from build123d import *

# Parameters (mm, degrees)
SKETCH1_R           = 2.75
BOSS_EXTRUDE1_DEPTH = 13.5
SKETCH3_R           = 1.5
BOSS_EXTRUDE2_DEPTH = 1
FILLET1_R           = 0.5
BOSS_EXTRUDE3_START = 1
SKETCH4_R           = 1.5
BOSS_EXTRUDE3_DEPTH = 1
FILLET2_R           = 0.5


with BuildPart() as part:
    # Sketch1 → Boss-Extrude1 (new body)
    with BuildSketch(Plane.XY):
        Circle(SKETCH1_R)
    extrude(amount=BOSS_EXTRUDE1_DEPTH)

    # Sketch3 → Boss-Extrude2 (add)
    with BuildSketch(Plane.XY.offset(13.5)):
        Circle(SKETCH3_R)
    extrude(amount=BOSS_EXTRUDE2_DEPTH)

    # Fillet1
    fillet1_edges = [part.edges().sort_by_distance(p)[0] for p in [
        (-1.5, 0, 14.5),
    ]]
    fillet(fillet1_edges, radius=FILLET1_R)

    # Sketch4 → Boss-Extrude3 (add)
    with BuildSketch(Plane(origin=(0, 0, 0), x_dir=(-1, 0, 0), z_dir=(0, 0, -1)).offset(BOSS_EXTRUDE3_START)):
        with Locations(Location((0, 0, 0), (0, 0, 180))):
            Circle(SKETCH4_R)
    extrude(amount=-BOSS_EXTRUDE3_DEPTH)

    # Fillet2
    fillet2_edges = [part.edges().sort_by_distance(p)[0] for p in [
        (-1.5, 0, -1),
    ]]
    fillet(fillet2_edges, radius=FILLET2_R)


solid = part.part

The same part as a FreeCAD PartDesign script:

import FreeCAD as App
import Part
import Sketcher
Q = App.Units.Quantity


def edges_at(feature, points):
    """Names of the edges that pass closest to the given points."""
    edges = feature.Shape.Edges
    near = lambda p: min(range(len(edges)), key=lambda i: edges[i].distToShape(Part.Vertex(*p))[0])
    return sorted({f"Edge{near(p) + 1}" for p in points})

doc = App.newDocument("Part")
body = doc.addObject("PartDesign::Body", "Body")

# Sketch on XY plane
sketch1 = doc.addObject("Sketcher::SketchObject", "Sketch")
body.addObject(sketch1)
sketch1.AttachmentSupport = (doc.XY_Plane, [""])
sketch1.MapMode = "FlatFace"
sketch1.addGeometry(Part.Circle(App.Vector(0, 0, 0), App.Vector(0, 0, 1), 2.8), False)
sketch1.addConstraint(Sketcher.Constraint("Coincident", 0, 3, -1, 1))
sketch1.addConstraint(Sketcher.Constraint("Diameter", 0, Q("5.5 mm")))
pad1 = doc.addObject("PartDesign::Pad", "Pad")
body.addObject(pad1)
pad1.Profile = sketch1
pad1.Length = 13.5

# Sketch on XY plane
sketch2 = doc.addObject("Sketcher::SketchObject", "Sketch001")
body.addObject(sketch2)
sketch2.AttachmentSupport = (doc.XY_Plane, [""])
sketch2.MapMode = "FlatFace"
sketch2.AttachmentOffset = App.Placement(App.Vector(0, 0, 13.5), App.Rotation())
sketch2.addGeometry(Part.Circle(App.Vector(0, 0, 0), App.Vector(0, 0, 1), 1.5), False)
sketch2.addConstraint(Sketcher.Constraint("Coincident", 0, 3, -1, 1))
sketch2.addConstraint(Sketcher.Constraint("Diameter", 0, Q("3 mm")))
pad2 = doc.addObject("PartDesign::Pad", "Pad001")
body.addObject(pad2)
pad2.Profile = sketch2
pad2.Length = 1
doc.recompute()

fillet = doc.addObject("PartDesign::Fillet", "Fillet")
body.addObject(fillet)
fillet.Base = (pad2, edges_at(pad2, [(-1.5, 0, 14.5)]))
fillet.Radius = 0.5

# Sketch on XY plane
sketch3 = doc.addObject("Sketcher::SketchObject", "Sketch002")
body.addObject(sketch3)
sketch3.AttachmentSupport = (doc.XY_Plane, [""])
sketch3.MapMode = "FlatFace"
sketch3.AttachmentOffset = App.Placement(App.Vector(0, 0, -1), App.Rotation())
sketch3.addGeometry(Part.Circle(App.Vector(0, 0, 0), App.Vector(0, 0, 1), 1.5), False)
sketch3.addConstraint(Sketcher.Constraint("Coincident", 0, 3, -1, 1))
sketch3.addConstraint(Sketcher.Constraint("Diameter", 0, Q("3 mm")))
pad3 = doc.addObject("PartDesign::Pad", "Pad002")
body.addObject(pad3)
pad3.Profile = sketch3
pad3.Length = 1
doc.recompute()

fillet2 = doc.addObject("PartDesign::Fillet", "Fillet001")
body.addObject(fillet2)
fillet2.Base = (pad3, edges_at(pad3, [(-1.5, 0, -1)]))
fillet2.Radius = 0.5

doc.recompute()
